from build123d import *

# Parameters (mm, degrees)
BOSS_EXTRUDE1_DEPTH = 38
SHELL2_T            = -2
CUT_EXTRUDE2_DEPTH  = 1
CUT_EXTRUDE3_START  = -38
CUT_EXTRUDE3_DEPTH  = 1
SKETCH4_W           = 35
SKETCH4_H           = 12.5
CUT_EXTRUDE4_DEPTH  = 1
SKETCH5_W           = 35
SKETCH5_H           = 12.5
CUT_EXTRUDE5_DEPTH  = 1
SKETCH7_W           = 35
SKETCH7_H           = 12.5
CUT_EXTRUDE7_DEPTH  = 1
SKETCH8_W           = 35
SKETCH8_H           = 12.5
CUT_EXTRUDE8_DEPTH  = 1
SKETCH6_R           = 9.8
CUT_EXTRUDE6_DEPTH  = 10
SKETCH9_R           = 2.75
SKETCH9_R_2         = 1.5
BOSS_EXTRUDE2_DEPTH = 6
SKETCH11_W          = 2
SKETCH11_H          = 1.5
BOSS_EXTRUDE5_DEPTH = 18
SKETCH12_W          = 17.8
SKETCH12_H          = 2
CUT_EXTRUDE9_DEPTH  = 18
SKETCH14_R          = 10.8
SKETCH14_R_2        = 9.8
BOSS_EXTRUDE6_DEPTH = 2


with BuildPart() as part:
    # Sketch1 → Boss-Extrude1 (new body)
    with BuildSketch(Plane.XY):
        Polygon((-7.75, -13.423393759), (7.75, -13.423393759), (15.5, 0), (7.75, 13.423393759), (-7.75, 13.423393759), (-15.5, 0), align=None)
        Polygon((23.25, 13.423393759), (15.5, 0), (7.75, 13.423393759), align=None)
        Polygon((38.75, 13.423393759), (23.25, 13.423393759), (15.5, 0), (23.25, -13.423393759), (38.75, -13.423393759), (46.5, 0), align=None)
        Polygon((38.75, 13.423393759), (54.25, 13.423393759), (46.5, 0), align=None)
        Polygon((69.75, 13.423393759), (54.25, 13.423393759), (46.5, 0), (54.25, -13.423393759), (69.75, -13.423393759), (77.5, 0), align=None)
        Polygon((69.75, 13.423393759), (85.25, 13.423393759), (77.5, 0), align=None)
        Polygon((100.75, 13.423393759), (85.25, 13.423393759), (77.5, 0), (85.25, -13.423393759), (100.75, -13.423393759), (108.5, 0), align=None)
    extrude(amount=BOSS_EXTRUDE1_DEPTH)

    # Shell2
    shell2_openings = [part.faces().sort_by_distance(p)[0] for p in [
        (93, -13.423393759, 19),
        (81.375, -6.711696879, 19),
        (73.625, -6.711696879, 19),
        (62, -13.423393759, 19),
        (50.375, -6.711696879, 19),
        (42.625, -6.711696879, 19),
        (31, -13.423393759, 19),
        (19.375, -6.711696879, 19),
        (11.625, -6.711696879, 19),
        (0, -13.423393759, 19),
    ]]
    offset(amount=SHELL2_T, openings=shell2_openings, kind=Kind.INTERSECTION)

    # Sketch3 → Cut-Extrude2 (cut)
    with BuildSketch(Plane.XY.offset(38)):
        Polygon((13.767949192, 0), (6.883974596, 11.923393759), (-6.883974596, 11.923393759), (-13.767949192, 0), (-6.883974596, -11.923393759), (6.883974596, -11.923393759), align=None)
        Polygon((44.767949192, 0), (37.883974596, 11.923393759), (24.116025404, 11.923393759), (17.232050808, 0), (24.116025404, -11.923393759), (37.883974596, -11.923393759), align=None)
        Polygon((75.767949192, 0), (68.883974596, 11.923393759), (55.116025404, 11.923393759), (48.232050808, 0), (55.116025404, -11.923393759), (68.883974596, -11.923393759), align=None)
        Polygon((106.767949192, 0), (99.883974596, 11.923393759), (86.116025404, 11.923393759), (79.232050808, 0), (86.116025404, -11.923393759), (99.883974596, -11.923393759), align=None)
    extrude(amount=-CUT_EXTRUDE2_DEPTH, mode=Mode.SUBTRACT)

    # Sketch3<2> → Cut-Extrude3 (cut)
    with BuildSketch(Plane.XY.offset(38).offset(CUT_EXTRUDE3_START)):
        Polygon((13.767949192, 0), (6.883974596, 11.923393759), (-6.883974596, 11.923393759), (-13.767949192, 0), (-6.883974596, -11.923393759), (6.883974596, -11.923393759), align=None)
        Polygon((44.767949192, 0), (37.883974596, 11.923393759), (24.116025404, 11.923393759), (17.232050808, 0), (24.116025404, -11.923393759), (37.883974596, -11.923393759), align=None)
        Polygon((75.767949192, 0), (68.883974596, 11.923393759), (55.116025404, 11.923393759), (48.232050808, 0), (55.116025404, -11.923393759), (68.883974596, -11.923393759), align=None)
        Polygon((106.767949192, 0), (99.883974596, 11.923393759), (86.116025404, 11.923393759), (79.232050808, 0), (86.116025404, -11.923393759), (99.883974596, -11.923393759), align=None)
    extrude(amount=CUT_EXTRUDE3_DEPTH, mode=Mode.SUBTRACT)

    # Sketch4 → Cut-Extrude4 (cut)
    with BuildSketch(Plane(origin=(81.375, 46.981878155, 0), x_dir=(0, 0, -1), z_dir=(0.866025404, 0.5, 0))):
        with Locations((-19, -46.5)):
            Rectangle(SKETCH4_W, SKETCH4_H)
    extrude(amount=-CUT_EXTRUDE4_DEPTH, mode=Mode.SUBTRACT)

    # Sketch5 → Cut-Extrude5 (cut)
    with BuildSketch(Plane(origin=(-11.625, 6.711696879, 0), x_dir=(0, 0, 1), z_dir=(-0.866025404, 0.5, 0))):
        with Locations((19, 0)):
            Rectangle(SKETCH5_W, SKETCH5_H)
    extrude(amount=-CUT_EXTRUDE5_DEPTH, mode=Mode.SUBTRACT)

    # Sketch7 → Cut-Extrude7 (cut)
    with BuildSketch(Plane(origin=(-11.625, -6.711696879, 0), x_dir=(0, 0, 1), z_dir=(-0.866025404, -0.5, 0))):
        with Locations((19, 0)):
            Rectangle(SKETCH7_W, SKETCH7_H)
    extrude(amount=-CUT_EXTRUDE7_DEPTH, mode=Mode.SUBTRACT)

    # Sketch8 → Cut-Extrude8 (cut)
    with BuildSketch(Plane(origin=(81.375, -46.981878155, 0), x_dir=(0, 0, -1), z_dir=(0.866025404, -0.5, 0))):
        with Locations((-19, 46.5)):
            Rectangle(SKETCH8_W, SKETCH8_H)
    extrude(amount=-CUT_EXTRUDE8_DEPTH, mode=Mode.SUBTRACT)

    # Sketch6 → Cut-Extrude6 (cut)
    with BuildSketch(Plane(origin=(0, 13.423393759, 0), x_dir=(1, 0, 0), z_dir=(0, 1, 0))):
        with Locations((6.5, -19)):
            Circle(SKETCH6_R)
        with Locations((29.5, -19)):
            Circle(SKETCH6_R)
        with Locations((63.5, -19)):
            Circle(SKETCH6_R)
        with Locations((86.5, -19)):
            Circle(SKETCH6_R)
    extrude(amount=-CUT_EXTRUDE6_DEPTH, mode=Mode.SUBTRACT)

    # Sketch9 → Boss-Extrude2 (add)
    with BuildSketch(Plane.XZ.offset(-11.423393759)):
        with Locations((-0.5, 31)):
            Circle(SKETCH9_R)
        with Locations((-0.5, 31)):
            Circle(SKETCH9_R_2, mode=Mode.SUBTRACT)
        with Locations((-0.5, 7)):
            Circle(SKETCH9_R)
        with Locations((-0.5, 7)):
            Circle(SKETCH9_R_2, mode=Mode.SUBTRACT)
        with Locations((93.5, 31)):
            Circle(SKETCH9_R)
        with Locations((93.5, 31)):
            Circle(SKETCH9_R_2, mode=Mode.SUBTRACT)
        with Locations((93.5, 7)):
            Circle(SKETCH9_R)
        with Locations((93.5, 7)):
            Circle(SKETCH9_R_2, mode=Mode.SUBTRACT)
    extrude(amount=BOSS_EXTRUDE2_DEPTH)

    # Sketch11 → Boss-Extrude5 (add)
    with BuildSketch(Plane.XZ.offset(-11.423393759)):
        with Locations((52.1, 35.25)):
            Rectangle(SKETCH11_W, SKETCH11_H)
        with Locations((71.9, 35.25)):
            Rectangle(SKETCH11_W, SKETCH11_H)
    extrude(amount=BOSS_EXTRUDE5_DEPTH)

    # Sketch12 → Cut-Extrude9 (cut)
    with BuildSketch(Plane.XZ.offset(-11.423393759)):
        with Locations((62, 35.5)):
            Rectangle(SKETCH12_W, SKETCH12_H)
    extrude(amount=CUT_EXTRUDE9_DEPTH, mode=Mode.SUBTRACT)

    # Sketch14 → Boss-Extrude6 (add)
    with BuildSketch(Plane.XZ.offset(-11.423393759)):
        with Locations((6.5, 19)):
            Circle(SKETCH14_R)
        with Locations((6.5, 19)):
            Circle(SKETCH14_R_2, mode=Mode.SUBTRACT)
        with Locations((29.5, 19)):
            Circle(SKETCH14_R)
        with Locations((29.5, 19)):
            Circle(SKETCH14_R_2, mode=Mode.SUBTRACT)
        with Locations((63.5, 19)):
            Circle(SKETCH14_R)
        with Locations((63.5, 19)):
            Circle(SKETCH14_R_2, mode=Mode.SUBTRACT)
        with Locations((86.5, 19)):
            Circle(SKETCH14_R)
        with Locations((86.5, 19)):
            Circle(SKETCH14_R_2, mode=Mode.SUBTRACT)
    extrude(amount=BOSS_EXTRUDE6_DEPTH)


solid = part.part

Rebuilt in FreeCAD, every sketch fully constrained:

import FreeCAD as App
import Part
import Sketcher
from FreeCAD import Vector
Q = App.Units.Quantity


def faces_at(feature, points):
    """Names of the faces that lie closest to the given points."""
    faces = feature.Shape.Faces
    near = lambda p: min(range(len(faces)), key=lambda i: faces[i].distToShape(Part.Vertex(*p))[0])
    return sorted({f"Face{near(p) + 1}" for p in points})


def add_polygon(sketch, points):
    """Adds a closed chain of lines whose ends are joined by coincident constraints."""
    first, n = sketch.GeometryCount, len(points)
    for a, b in zip(points, points[1:] + points[:1]):
        sketch.addGeometry(Part.LineSegment(App.Vector(*a, 0), App.Vector(*b, 0)), False)
    for i in range(n):
        sketch.addConstraint(Sketcher.Constraint("Coincident", first + i, 2, first + (i + 1) % n, 1))

doc = App.newDocument("Part")
params = doc.addObject("Spreadsheet::Sheet", "Params")
for row, (alias, value) in enumerate([
    ("sketch1_width", "15.5 mm"),
    ("sketch1_width2", "108.5 mm"),
    ("pad1_length", "38 mm"),
    ("thickness_wall", "2 mm"),
    ("pocket1_length", "1 mm"),
    ("pocket2_length", "1 mm"),
    ("sketch4_width", "35 mm"),
    ("sketch4_height", "12.5 mm"),
    ("pocket3_length", "1 mm"),
    ("sketch5_width", "35 mm"),
    ("sketch5_height", "12.5 mm"),
    ("pocket4_length", "1 mm"),
    ("sketch6_width", "35 mm"),
    ("sketch6_height", "12.5 mm"),
    ("pocket5_length", "1 mm"),
    ("sketch7_width", "35 mm"),
    ("sketch7_height", "12.5 mm"),
    ("pocket6_length", "1 mm"),
    ("sketch8_diameter", "19.6 mm"),
    ("pocket7_length", "10 mm"),
    ("sketch9_diameter", "3 mm"),
    ("sketch9_diameter2", "5.5 mm"),
    ("pad2_length", "6 mm"),
    ("sketch10_width", "2 mm"),
    ("sketch10_height", "1.5 mm"),
    ("pad3_length", "18 mm"),
    ("sketch11_height", "2 mm"),
    ("sketch11_width", "17.8 mm"),
    ("pocket8_length", "18 mm"),
    ("sketch12_diameter", "21.6 mm"),
    ("sketch12_diameter2", "19.6 mm"),
    ("pad4_length", "2 mm"),
], start=1):
    params.set(f"A{row}", alias)
    params.set(f"B{row}", "=" + value)
    params.setAlias(f"B{row}", alias)

body = doc.addObject("PartDesign::Body", "Body")

sketch1 = doc.addObject("Sketcher::SketchObject", "Sketch")
body.addObject(sketch1)
sketch1.AttachmentSupport = (doc.XY_Plane, [""])
sketch1.MapMode = "FlatFace"
add_polygon(sketch1, [(-7.75, -13.423394), (7.75, -13.423394), (15.5, 0), (23.25, -13.423394), (38.75, -13.423394), (46.5, 0), (54.25, -13.423394), (69.75, -13.423394), (77.5, 0), (85.25, -13.423394), (100.75, -13.423394), (108.5, 0), (100.75, 13.423394), (-7.75, 13.423394), (-15.5, 0)])
sketch1.addConstraint([
    Sketcher.Constraint("Horizontal", 0),
    Sketcher.Constraint("Horizontal", 3),
    Sketcher.Constraint("Horizontal", 6),
    Sketcher.Constraint("Horizontal", 9),
    Sketcher.Constraint("Horizontal", 12),
    Sketcher.Constraint("Symmetric", 0, 2, 12, 2, -1, 1),
    Sketcher.Constraint("Symmetric", 1, 2, 13, 2, -1, 1),
    Sketcher.Constraint("Symmetric", 9, 2, 11, 2, -1),
    Sketcher.Constraint("PointOnObject", 1, 2, -1),
    Sketcher.Constraint("PointOnObject", 4, 2, -1),
    Sketcher.Constraint("PointOnObject", 7, 2, -1),
    Sketcher.Constraint("PointOnObject", 10, 2, -1),
    Sketcher.Constraint("Parallel", 1, 4),
    Sketcher.Constraint("Parallel", 2, 5),
    Sketcher.Constraint("Parallel", 4, 7),
    Sketcher.Constraint("Parallel", 5, 8),
    Sketcher.Constraint("Parallel", 7, 10),
    Sketcher.Constraint("Parallel", 8, 11),
    Sketcher.Constraint("Parallel", 11, 14),
    Sketcher.Constraint("Horizontal", 0, 2, 2, 2),
    Sketcher.Constraint("Horizontal", 3, 2, 5, 2),
    Sketcher.Constraint("Equal", 0, 3),
    Sketcher.Constraint("Equal", 3, 6),
    Sketcher.Constraint("Equal", 6, 9),
    Sketcher.Constraint("Angle", 1, Q("60 deg")),
    Sketcher.Constraint("DistanceX", 0, 1, 0, 2, 15.5),
    Sketcher.Constraint("DistanceX", 12, 2, 12, 1, 108.5),
])
sketch1.setExpression("Constraints[40]", "Params.sketch1_width")
sketch1.setExpression("Constraints[41]", "Params.sketch1_width2")
pad1 = doc.addObject("PartDesign::Pad", "Pad")
body.addObject(pad1)
pad1.Profile = sketch1
pad1.setExpression("Length", "Params.pad1_length")
doc.recompute()

thickness = doc.addObject("PartDesign::Thickness", "Thickness")
body.addObject(thickness)
thickness.Base = (pad1, faces_at(pad1, [
    (93, -13.423, 19),
    (81.375, -6.712, 19),
    (73.625, -6.712, 19),
    (62, -13.423, 19),
    (50.375, -6.712, 19),
    (42.625, -6.712, 19),
    (31, -13.423, 19),
    (19.375, -6.712, 19),
    (11.625, -6.712, 19),
    (0, -13.423, 19),
]))
thickness.setExpression("Value", "Params.thickness_wall")
thickness.Reversed = True
thickness.Join = "Intersection"

sketch2 = doc.addObject("Sketcher::SketchObject", "Sketch001")
body.addObject(sketch2)
sketch2.AttachmentSupport = (doc.XY_Plane, [""])
sketch2.MapMode = "FlatFace"
sketch2.AttachmentOffset = App.Placement(Vector(0, 0, 38), App.Rotation())
add_polygon(sketch2, [(13.767949, 0), (6.883975, 11.923394), (-6.883975, 11.923394), (-13.767949, 0), (-6.883975, -11.923394), (6.883975, -11.923394)])
add_polygon(sketch2, [(44.767949, 0), (37.883975, 11.923394), (24.116025, 11.923394), (17.232051, 0), (24.116025, -11.923394), (37.883975, -11.923394)])
add_polygon(sketch2, [(75.767949, 0), (68.883975, 11.923394), (55.116025, 11.923394), (48.232051, 0), (55.116025, -11.923394), (68.883975, -11.923394)])
add_polygon(sketch2, [(106.767949, 0), (99.883975, 11.923394), (86.116025, 11.923394), (79.232051, 0), (86.116025, -11.923394), (99.883975, -11.923394)])
sketch2.addConstraint([
    Sketcher.Constraint("Horizontal", 1),
    Sketcher.Constraint("Horizontal", 4),
    Sketcher.Constraint("Horizontal", 7),
    Sketcher.Constraint("Horizontal", 10),
    Sketcher.Constraint("Horizontal", 13),
    Sketcher.Constraint("Horizontal", 16),
    Sketcher.Constraint("Horizontal", 19),
    Sketcher.Constraint("Horizontal", 22),
    Sketcher.Constraint("Symmetric", 0, 2, 3, 2, -1, 1),
    Sketcher.Constraint("Symmetric", 2, 2, 5, 2, -1, 1),
    Sketcher.Constraint("Symmetric", 7, 2, 9, 2, -1),
    Sketcher.Constraint("Symmetric", 13, 2, 15, 2, -1),
    Sketcher.Constraint("Symmetric", 19, 2, 21, 2, -1),
    Sketcher.Constraint("PointOnObject", 2, 2, -1),
    Sketcher.Constraint("PointOnObject", 8, 2, -1),
    Sketcher.Constraint("PointOnObject", 11, 2, -1),
    Sketcher.Constraint("PointOnObject", 14, 2, -1),
    Sketcher.Constraint("PointOnObject", 17, 2, -1),
    Sketcher.Constraint("PointOnObject", 20, 2, -1),
    Sketcher.Constraint("PointOnObject", 23, 2, -1),
    Sketcher.Constraint("Parallel", 2, 5),
    Sketcher.Constraint("Parallel", 3, 6),
    Sketcher.Constraint("Parallel", 5, 8),
    Sketcher.Constraint("Parallel", 6, 9),
    Sketcher.Constraint("Parallel", 8, 11),
    Sketcher.Constraint("Parallel", 9, 12),
    Sketcher.Constraint("Parallel", 11, 14),
    Sketcher.Constraint("Parallel", 14, 17),
    Sketcher.Constraint("Parallel", 15, 18),
    Sketcher.Constraint("Parallel", 17, 20),
    Sketcher.Constraint("Parallel", 20, 23),
    Sketcher.Constraint("Horizontal", 1, 2, 6, 2),
    Sketcher.Constraint("Horizontal", 7, 2, 12, 2),
    Sketcher.Constraint("Horizontal", 13, 2, 18, 2),
    Sketcher.Constraint("Equal", 4, 7),
    Sketcher.Constraint("Equal", 10, 13),
    Sketcher.Constraint("Equal", 16, 19),
    Sketcher.Constraint("Angle", 0, Q("120 deg")),
    Sketcher.Constraint("DistanceX", 0, 2, 6, 2, 31.0),
    Sketcher.Constraint("DistanceX", 6, 2, 12, 2, 31.0),
    Sketcher.Constraint("DistanceX", 12, 2, 18, 2, 31.0),
    Sketcher.Constraint("DistanceX", 1, 2, 1, 1, 13.767949),
    Sketcher.Constraint("DistanceX", 2, 2, 5, 2, 27.535898),
])
pocket1 = doc.addObject("PartDesign::Pocket", "Pocket")
body.addObject(pocket1)
pocket1.Profile = sketch2
pocket1.setExpression("Length", "Params.pocket1_length")

sketch3 = doc.addObject("Sketcher::SketchObject", "Sketch002")
body.addObject(sketch3)
sketch3.AttachmentSupport = (doc.XY_Plane, [""])
sketch3.MapMode = "FlatFace"
add_polygon(sketch3, [(13.767949, 0), (6.883975, 11.923394), (-6.883975, 11.923394), (-13.767949, 0), (-6.883975, -11.923394), (6.883975, -11.923394)])
add_polygon(sketch3, [(44.767949, 0), (37.883975, 11.923394), (24.116025, 11.923394), (17.232051, 0), (24.116025, -11.923394), (37.883975, -11.923394)])
add_polygon(sketch3, [(75.767949, 0), (68.883975, 11.923394), (55.116025, 11.923394), (48.232051, 0), (55.116025, -11.923394), (68.883975, -11.923394)])
add_polygon(sketch3, [(106.767949, 0), (99.883975, 11.923394), (86.116025, 11.923394), (79.232051, 0), (86.116025, -11.923394), (99.883975, -11.923394)])
sketch3.addConstraint([
    Sketcher.Constraint("Horizontal", 1),
    Sketcher.Constraint("Horizontal", 4),
    Sketcher.Constraint("Horizontal", 7),
    Sketcher.Constraint("Horizontal", 10),
    Sketcher.Constraint("Horizontal", 13),
    Sketcher.Constraint("Horizontal", 16),
    Sketcher.Constraint("Horizontal", 19),
    Sketcher.Constraint("Horizontal", 22),
    Sketcher.Constraint("Symmetric", 0, 2, 3, 2, -1, 1),
    Sketcher.Constraint("Symmetric", 2, 2, 5, 2, -1, 1),
    Sketcher.Constraint("Symmetric", 7, 2, 9, 2, -1),
    Sketcher.Constraint("Symmetric", 13, 2, 15, 2, -1),
    Sketcher.Constraint("Symmetric", 19, 2, 21, 2, -1),
    Sketcher.Constraint("PointOnObject", 2, 2, -1),
    Sketcher.Constraint("PointOnObject", 8, 2, -1),
    Sketcher.Constraint("PointOnObject", 11, 2, -1),
    Sketcher.Constraint("PointOnObject", 14, 2, -1),
    Sketcher.Constraint("PointOnObject", 17, 2, -1),
    Sketcher.Constraint("PointOnObject", 20, 2, -1),
    Sketcher.Constraint("PointOnObject", 23, 2, -1),
    Sketcher.Constraint("Parallel", 2, 5),
    Sketcher.Constraint("Parallel", 3, 6),
    Sketcher.Constraint("Parallel", 5, 8),
    Sketcher.Constraint("Parallel", 6, 9),
    Sketcher.Constraint("Parallel", 8, 11),
    Sketcher.Constraint("Parallel", 9, 12),
    Sketcher.Constraint("Parallel", 11, 14),
    Sketcher.Constraint("Parallel", 14, 17),
    Sketcher.Constraint("Parallel", 15, 18),
    Sketcher.Constraint("Parallel", 17, 20),
    Sketcher.Constraint("Parallel", 20, 23),
    Sketcher.Constraint("Horizontal", 1, 2, 6, 2),
    Sketcher.Constraint("Horizontal", 7, 2, 12, 2),
    Sketcher.Constraint("Horizontal", 13, 2, 18, 2),
    Sketcher.Constraint("Equal", 4, 7),
    Sketcher.Constraint("Equal", 10, 13),
    Sketcher.Constraint("Equal", 16, 19),
    Sketcher.Constraint("Angle", 0, Q("120 deg")),
    Sketcher.Constraint("DistanceX", 0, 2, 6, 2, 31.0),
    Sketcher.Constraint("DistanceX", 6, 2, 12, 2, 31.0),
    Sketcher.Constraint("DistanceX", 12, 2, 18, 2, 31.0),
    Sketcher.Constraint("DistanceX", 1, 2, 1, 1, 13.767949),
    Sketcher.Constraint("DistanceX", 2, 2, 5, 2, 27.535898),
])
pocket2 = doc.addObject("PartDesign::Pocket", "Pocket001")
body.addObject(pocket2)
pocket2.Profile = sketch3
pocket2.setExpression("Length", "Params.pocket2_length")
pocket2.Reversed = True

sketch4 = doc.addObject("Sketcher::SketchObject", "Sketch003")
body.addObject(sketch4)
sketch4.Placement = App.Placement(Vector(81.375, 46.981878, 0), App.Rotation(Vector(0, 0, -1), Vector(-0.5, 0.866025404, 0), Vector(0.866025404, 0.5, 0), "ZXY"))
add_polygon(sketch4, [(-36.5, -40.25), (-36.5, -52.75), (-1.5, -52.75), (-1.5, -40.25)])
sketch4.addConstraint([
    Sketcher.Constraint("Vertical", 0),
    Sketcher.Constraint("Horizontal", 1),
    Sketcher.Constraint("Vertical", 2),
    Sketcher.Constraint("Horizontal", 3),
    Sketcher.Constraint("DistanceX", 1, 1, 1, 2, 35.0),
    Sketcher.Constraint("DistanceY", 0, 2, 0, 1, 12.5),
    Sketcher.Constraint("DistanceX", 0, 2, -1, 1, 36.5),
    Sketcher.Constraint("DistanceY", 0, 2, -1, 1, 52.75),
])
sketch4.setExpression("Constraints[8]", "Params.sketch4_width")
sketch4.setExpression("Constraints[9]", "Params.sketch4_height")
pocket3 = doc.addObject("PartDesign::Pocket", "Pocket002")
body.addObject(pocket3)
pocket3.Profile = sketch4
pocket3.setExpression("Length", "Params.pocket3_length")

sketch5 = doc.addObject("Sketcher::SketchObject", "Sketch004")
body.addObject(sketch5)
sketch5.Placement = App.Placement(Vector(-11.625, 6.711697, 0), App.Rotation(Vector(0, 0, 1), Vector(0.5, 0.866025404, 0), Vector(-0.866025404, 0.5, 0), "ZXY"))
add_polygon(sketch5, [(1.5, 6.25), (1.5, -6.25), (36.5, -6.25), (36.5, 6.25)])
sketch5.addConstraint([
    Sketcher.Constraint("Vertical", 0),
    Sketcher.Constraint("Horizontal", 1),
    Sketcher.Constraint("Vertical", 2),
    Sketcher.Constraint("Horizontal", 3),
    Sketcher.Constraint("DistanceX", 1, 1, 1, 2, 35.0),
    Sketcher.Constraint("DistanceY", 0, 2, 0, 1, 12.5),
    Sketcher.Constraint("DistanceX", -1, 1, 0, 2, 1.5),
    Sketcher.Constraint("DistanceY", 0, 2, -1, 1, 6.25),
])
sketch5.setExpression("Constraints[8]", "Params.sketch5_width")
sketch5.setExpression("Constraints[9]", "Params.sketch5_height")
pocket4 = doc.addObject("PartDesign::Pocket", "Pocket003")
body.addObject(pocket4)
pocket4.Profile = sketch5
pocket4.setExpression("Length", "Params.pocket4_length")

sketch6 = doc.addObject("Sketcher::SketchObject", "Sketch005")
body.addObject(sketch6)
sketch6.Placement = App.Placement(Vector(-11.625, -6.711697, 0), App.Rotation(Vector(0, 0, 1), Vector(-0.5, 0.866025404, 0), Vector(-0.866025404, -0.5, 0), "ZXY"))
add_polygon(sketch6, [(1.5, 6.25), (1.5, -6.25), (36.5, -6.25), (36.5, 6.25)])
sketch6.addConstraint([
    Sketcher.Constraint("Vertical", 0),
    Sketcher.Constraint("Horizontal", 1),
    Sketcher.Constraint("Vertical", 2),
    Sketcher.Constraint("Horizontal", 3),
    Sketcher.Constraint("DistanceX", 1, 1, 1, 2, 35.0),
    Sketcher.Constraint("DistanceY", 0, 2, 0, 1, 12.5),
    Sketcher.Constraint("DistanceX", -1, 1, 0, 2, 1.5),
    Sketcher.Constraint("DistanceY", 0, 2, -1, 1, 6.25),
])
sketch6.setExpression("Constraints[8]", "Params.sketch6_width")
sketch6.setExpression("Constraints[9]", "Params.sketch6_height")
pocket5 = doc.addObject("PartDesign::Pocket", "Pocket004")
body.addObject(pocket5)
pocket5.Profile = sketch6
pocket5.setExpression("Length", "Params.pocket5_length")

sketch7 = doc.addObject("Sketcher::SketchObject", "Sketch006")
body.addObject(sketch7)
sketch7.Placement = App.Placement(Vector(81.375, -46.981878, 0), App.Rotation(Vector(0, 0, -1), Vector(0.5, 0.866025404, 0), Vector(0.866025404, -0.5, 0), "ZXY"))
add_polygon(sketch7, [(-36.5, 52.75), (-36.5, 40.25), (-1.5, 40.25), (-1.5, 52.75)])
sketch7.addConstraint([
    Sketcher.Constraint("Vertical", 0),
    Sketcher.Constraint("Horizontal", 1),
    Sketcher.Constraint("Vertical", 2),
    Sketcher.Constraint("Horizontal", 3),
    Sketcher.Constraint("DistanceX", 1, 1, 1, 2, 35.0),
    Sketcher.Constraint("DistanceY", 0, 2, 0, 1, 12.5),
    Sketcher.Constraint("DistanceX", 0, 2, -1, 1, 36.5),
    Sketcher.Constraint("DistanceY", -1, 1, 0, 2, 40.25),
])
sketch7.setExpression("Constraints[8]", "Params.sketch7_width")
sketch7.setExpression("Constraints[9]", "Params.sketch7_height")
pocket6 = doc.addObject("PartDesign::Pocket", "Pocket005")
body.addObject(pocket6)
pocket6.Profile = sketch7
pocket6.setExpression("Length", "Params.pocket6_length")

sketch8 = doc.addObject("Sketcher::SketchObject", "Sketch007")
body.addObject(sketch8)
sketch8.AttachmentSupport = (doc.XZ_Plane, [""])
sketch8.MapMode = "FlatFace"
sketch8.AttachmentOffset = App.Placement(Vector(0, 0, -13.423394), App.Rotation())
sketch8.addGeometry([
    Part.Circle(Vector(6.5, 19, 0), Vector(0, 0, 1), 9.8),
    Part.Circle(Vector(29.5, 19, 0), Vector(0, 0, 1), 9.8),
    Part.Circle(Vector(63.5, 19, 0), Vector(0, 0, 1), 9.8),
    Part.Circle(Vector(86.5, 19, 0), Vector(0, 0, 1), 9.8),
], False)
sketch8.addConstraint([
    Sketcher.Constraint("Equal", 0, 1),
    Sketcher.Constraint("Equal", 1, 2),
    Sketcher.Constraint("Equal", 2, 3),
    Sketcher.Constraint("Horizontal", 0, 3, 1, 3),
    Sketcher.Constraint("Horizontal", 1, 3, 2, 3),
    Sketcher.Constraint("Horizontal", 2, 3, 3, 3),
    Sketcher.Constraint("Diameter", 0, 19.6),
    Sketcher.Constraint("DistanceY", -1, 1, 0, 3, 19.0),
    Sketcher.Constraint("DistanceX", 0, 3, 1, 3, 23.0),
    Sketcher.Constraint("DistanceX", 1, 3, 2, 3, 34.0),
    Sketcher.Constraint("DistanceX", 2, 3, 3, 3, 23.0),
    Sketcher.Constraint("DistanceX", -1, 1, 0, 3, 6.5),
])
sketch8.setExpression("Constraints[6]", "Params.sketch8_diameter")
pocket7 = doc.addObject("PartDesign::Pocket", "Pocket006")
body.addObject(pocket7)
pocket7.Profile = sketch8
pocket7.setExpression("Length", "Params.pocket7_length")
pocket7.Reversed = True

sketch9 = doc.addObject("Sketcher::SketchObject", "Sketch008")
body.addObject(sketch9)
sketch9.AttachmentSupport = (doc.XZ_Plane, [""])
sketch9.MapMode = "FlatFace"
sketch9.AttachmentOffset = App.Placement(Vector(0, 0, -11.423394), App.Rotation())
sketch9.addGeometry([
    Part.Circle(Vector(-0.5, 31, 0), Vector(0, 0, 1), 2.75),
    Part.Circle(Vector(-0.5, 31, 0), Vector(0, 0, 1), 1.5),
    Part.Circle(Vector(-0.5, 7, 0), Vector(0, 0, 1), 2.75),
    Part.Circle(Vector(-0.5, 7, 0), Vector(0, 0, 1), 1.5),
    Part.Circle(Vector(93.5, 31, 0), Vector(0, 0, 1), 2.75),
    Part.Circle(Vector(93.5, 31, 0), Vector(0, 0, 1), 1.5),
    Part.Circle(Vector(93.5, 7, 0), Vector(0, 0, 1), 2.75),
    Part.Circle(Vector(93.5, 7, 0), Vector(0, 0, 1), 1.5),
], False)
sketch9.addConstraint([
    Sketcher.Constraint("Coincident", 1, 3, 0, 3),
    Sketcher.Constraint("Coincident", 3, 3, 2, 3),
    Sketcher.Constraint("Coincident", 5, 3, 4, 3),
    Sketcher.Constraint("Coincident", 7, 3, 6, 3),
    Sketcher.Constraint("Equal", 0, 2),
    Sketcher.Constraint("Equal", 1, 3),
    Sketcher.Constraint("Equal", 2, 4),
    Sketcher.Constraint("Equal", 3, 5),
    Sketcher.Constraint("Equal", 4, 6),
    Sketcher.Constraint("Equal", 5, 7),
    Sketcher.Constraint("Horizontal", 1, 3, 4, 3),
    Sketcher.Constraint("Horizontal", 3, 3, 6, 3),
    Sketcher.Constraint("Vertical", 1, 3, 2, 3),
    Sketcher.Constraint("Vertical", 5, 3, 6, 3),
    Sketcher.Constraint("Diameter", 1, 3.0),
    Sketcher.Constraint("Diameter", 0, 5.5),
    Sketcher.Constraint("DistanceY", -1, 1, 0, 3, 31.0),
    Sketcher.Constraint("DistanceY", -1, 1, 2, 3, 7.0),
    Sketcher.Constraint("DistanceX", 0, 3, 4, 3, 94.0),
    Sketcher.Constraint("DistanceX", 0, 3, -1, 1, 0.5),
])
sketch9.setExpression("Constraints[14]", "Params.sketch9_diameter")
sketch9.setExpression("Constraints[15]", "Params.sketch9_diameter2")
pad2 = doc.addObject("PartDesign::Pad", "Pad001")
body.addObject(pad2)
pad2.Profile = sketch9
pad2.setExpression("Length", "Params.pad2_length")

sketch10 = doc.addObject("Sketcher::SketchObject", "Sketch009")
body.addObject(sketch10)
sketch10.AttachmentSupport = (doc.XZ_Plane, [""])
sketch10.MapMode = "FlatFace"
sketch10.AttachmentOffset = App.Placement(Vector(0, 0, -11.423394), App.Rotation())
add_polygon(sketch10, [(51.1, 36), (51.1, 34.5), (53.1, 34.5), (53.1, 36)])
add_polygon(sketch10, [(70.9, 36), (70.9, 34.5), (72.9, 34.5), (72.9, 36)])
sketch10.addConstraint([
    Sketcher.Constraint("Vertical", 0),
    Sketcher.Constraint("Horizontal", 1),
    Sketcher.Constraint("Vertical", 2),
    Sketcher.Constraint("Horizontal", 3),
    Sketcher.Constraint("Vertical", 4),
    Sketcher.Constraint("Horizontal", 5),
    Sketcher.Constraint("Vertical", 6),
    Sketcher.Constraint("Horizontal", 7),
    Sketcher.Constraint("Horizontal", 1, 2, 4, 2),
    Sketcher.Constraint("Horizontal", 3, 2, 6, 2),
    Sketcher.Constraint("Equal", 3, 5),
    Sketcher.Constraint("DistanceX", 1, 1, 1, 2, 2.0),
    Sketcher.Constraint("DistanceY", 0, 2, 0, 1, 1.5),
    Sketcher.Constraint("DistanceY", -1, 1, 2, 2, 36.0),
    Sketcher.Constraint("DistanceX", -1, 1, 0, 2, 51.1),
    Sketcher.Constraint("DistanceX", -1, 1, 4, 2, 70.9),
])
sketch10.setExpression("Constraints[19]", "Params.sketch10_width")
sketch10.setExpression("Constraints[20]", "Params.sketch10_height")
pad3 = doc.addObject("PartDesign::Pad", "Pad002")
body.addObject(pad3)
pad3.Profile = sketch10
pad3.setExpression("Length", "Params.pad3_length")

sketch11 = doc.addObject("Sketcher::SketchObject", "Sketch010")
body.addObject(sketch11)
sketch11.AttachmentSupport = (doc.XZ_Plane, [""])
sketch11.MapMode = "FlatFace"
sketch11.AttachmentOffset = App.Placement(Vector(0, 0, -11.423394), App.Rotation())
add_polygon(sketch11, [(53.1, 36.5), (53.1, 34.5), (70.9, 34.5), (70.9, 36.5)])
sketch11.addConstraint([
    Sketcher.Constraint("Vertical", 0),
    Sketcher.Constraint("Horizontal", 1),
    Sketcher.Constraint("Vertical", 2),
    Sketcher.Constraint("Horizontal", 3),
    Sketcher.Constraint("DistanceY", 0, 2, 0, 1, 2.0),
    Sketcher.Constraint("DistanceX", 1, 1, 1, 2, 17.8),
    Sketcher.Constraint("DistanceX", -1, 1, 0, 2, 53.1),
    Sketcher.Constraint("DistanceY", -1, 1, 0, 2, 34.5),
])
sketch11.setExpression("Constraints[8]", "Params.sketch11_height")
sketch11.setExpression("Constraints[9]", "Params.sketch11_width")
pocket8 = doc.addObject("PartDesign::Pocket", "Pocket007")
body.addObject(pocket8)
pocket8.Profile = sketch11
pocket8.setExpression("Length", "Params.pocket8_length")
pocket8.Reversed = True

sketch12 = doc.addObject("Sketcher::SketchObject", "Sketch011")
body.addObject(sketch12)
sketch12.AttachmentSupport = (doc.XZ_Plane, [""])
sketch12.MapMode = "FlatFace"
sketch12.AttachmentOffset = App.Placement(Vector(0, 0, -11.423394), App.Rotation())
sketch12.addGeometry([
    Part.Circle(Vector(6.5, 19, 0), Vector(0, 0, 1), 10.8),
    Part.Circle(Vector(6.5, 19, 0), Vector(0, 0, 1), 9.8),
    Part.Circle(Vector(29.5, 19, 0), Vector(0, 0, 1), 10.8),
    Part.Circle(Vector(29.5, 19, 0), Vector(0, 0, 1), 9.8),
    Part.Circle(Vector(63.5, 19, 0), Vector(0, 0, 1), 10.8),
    Part.Circle(Vector(63.5, 19, 0), Vector(0, 0, 1), 9.8),
    Part.Circle(Vector(86.5, 19, 0), Vector(0, 0, 1), 10.8),
    Part.Circle(Vector(86.5, 19, 0), Vector(0, 0, 1), 9.8),
], False)
sketch12.addConstraint([
    Sketcher.Constraint("Coincident", 1, 3, 0, 3),
    Sketcher.Constraint("Coincident", 3, 3, 2, 3),
    Sketcher.Constraint("Coincident", 5, 3, 4, 3),
    Sketcher.Constraint("Coincident", 7, 3, 6, 3),
    Sketcher.Constraint("Equal", 0, 2),
    Sketcher.Constraint("Equal", 1, 3),
    Sketcher.Constraint("Equal", 2, 4),
    Sketcher.Constraint("Equal", 3, 5),
    Sketcher.Constraint("Equal", 4, 6),
    Sketcher.Constraint("Equal", 5, 7),
    Sketcher.Constraint("Horizontal", 1, 3, 2, 3),
    Sketcher.Constraint("Horizontal", 3, 3, 4, 3),
    Sketcher.Constraint("Horizontal", 5, 3, 6, 3),
    Sketcher.Constraint("Diameter", 0, 21.6),
    Sketcher.Constraint("Diameter", 1, 19.6),
    Sketcher.Constraint("DistanceY", -1, 1, 0, 3, 19.0),
    Sketcher.Constraint("DistanceX", 0, 3, 2, 3, 23.0),
    Sketcher.Constraint("DistanceX", 2, 3, 4, 3, 34.0),
    Sketcher.Constraint("DistanceX", 4, 3, 6, 3, 23.0),
    Sketcher.Constraint("DistanceX", -1, 1, 0, 3, 6.5),
])
sketch12.setExpression("Constraints[13]", "Params.sketch12_diameter")
sketch12.setExpression("Constraints[14]", "Params.sketch12_diameter2")
pad4 = doc.addObject("PartDesign::Pad", "Pad003")
body.addObject(pad4)
pad4.Profile = sketch12
pad4.setExpression("Length", "Params.pad4_length")

doc.recompute()
